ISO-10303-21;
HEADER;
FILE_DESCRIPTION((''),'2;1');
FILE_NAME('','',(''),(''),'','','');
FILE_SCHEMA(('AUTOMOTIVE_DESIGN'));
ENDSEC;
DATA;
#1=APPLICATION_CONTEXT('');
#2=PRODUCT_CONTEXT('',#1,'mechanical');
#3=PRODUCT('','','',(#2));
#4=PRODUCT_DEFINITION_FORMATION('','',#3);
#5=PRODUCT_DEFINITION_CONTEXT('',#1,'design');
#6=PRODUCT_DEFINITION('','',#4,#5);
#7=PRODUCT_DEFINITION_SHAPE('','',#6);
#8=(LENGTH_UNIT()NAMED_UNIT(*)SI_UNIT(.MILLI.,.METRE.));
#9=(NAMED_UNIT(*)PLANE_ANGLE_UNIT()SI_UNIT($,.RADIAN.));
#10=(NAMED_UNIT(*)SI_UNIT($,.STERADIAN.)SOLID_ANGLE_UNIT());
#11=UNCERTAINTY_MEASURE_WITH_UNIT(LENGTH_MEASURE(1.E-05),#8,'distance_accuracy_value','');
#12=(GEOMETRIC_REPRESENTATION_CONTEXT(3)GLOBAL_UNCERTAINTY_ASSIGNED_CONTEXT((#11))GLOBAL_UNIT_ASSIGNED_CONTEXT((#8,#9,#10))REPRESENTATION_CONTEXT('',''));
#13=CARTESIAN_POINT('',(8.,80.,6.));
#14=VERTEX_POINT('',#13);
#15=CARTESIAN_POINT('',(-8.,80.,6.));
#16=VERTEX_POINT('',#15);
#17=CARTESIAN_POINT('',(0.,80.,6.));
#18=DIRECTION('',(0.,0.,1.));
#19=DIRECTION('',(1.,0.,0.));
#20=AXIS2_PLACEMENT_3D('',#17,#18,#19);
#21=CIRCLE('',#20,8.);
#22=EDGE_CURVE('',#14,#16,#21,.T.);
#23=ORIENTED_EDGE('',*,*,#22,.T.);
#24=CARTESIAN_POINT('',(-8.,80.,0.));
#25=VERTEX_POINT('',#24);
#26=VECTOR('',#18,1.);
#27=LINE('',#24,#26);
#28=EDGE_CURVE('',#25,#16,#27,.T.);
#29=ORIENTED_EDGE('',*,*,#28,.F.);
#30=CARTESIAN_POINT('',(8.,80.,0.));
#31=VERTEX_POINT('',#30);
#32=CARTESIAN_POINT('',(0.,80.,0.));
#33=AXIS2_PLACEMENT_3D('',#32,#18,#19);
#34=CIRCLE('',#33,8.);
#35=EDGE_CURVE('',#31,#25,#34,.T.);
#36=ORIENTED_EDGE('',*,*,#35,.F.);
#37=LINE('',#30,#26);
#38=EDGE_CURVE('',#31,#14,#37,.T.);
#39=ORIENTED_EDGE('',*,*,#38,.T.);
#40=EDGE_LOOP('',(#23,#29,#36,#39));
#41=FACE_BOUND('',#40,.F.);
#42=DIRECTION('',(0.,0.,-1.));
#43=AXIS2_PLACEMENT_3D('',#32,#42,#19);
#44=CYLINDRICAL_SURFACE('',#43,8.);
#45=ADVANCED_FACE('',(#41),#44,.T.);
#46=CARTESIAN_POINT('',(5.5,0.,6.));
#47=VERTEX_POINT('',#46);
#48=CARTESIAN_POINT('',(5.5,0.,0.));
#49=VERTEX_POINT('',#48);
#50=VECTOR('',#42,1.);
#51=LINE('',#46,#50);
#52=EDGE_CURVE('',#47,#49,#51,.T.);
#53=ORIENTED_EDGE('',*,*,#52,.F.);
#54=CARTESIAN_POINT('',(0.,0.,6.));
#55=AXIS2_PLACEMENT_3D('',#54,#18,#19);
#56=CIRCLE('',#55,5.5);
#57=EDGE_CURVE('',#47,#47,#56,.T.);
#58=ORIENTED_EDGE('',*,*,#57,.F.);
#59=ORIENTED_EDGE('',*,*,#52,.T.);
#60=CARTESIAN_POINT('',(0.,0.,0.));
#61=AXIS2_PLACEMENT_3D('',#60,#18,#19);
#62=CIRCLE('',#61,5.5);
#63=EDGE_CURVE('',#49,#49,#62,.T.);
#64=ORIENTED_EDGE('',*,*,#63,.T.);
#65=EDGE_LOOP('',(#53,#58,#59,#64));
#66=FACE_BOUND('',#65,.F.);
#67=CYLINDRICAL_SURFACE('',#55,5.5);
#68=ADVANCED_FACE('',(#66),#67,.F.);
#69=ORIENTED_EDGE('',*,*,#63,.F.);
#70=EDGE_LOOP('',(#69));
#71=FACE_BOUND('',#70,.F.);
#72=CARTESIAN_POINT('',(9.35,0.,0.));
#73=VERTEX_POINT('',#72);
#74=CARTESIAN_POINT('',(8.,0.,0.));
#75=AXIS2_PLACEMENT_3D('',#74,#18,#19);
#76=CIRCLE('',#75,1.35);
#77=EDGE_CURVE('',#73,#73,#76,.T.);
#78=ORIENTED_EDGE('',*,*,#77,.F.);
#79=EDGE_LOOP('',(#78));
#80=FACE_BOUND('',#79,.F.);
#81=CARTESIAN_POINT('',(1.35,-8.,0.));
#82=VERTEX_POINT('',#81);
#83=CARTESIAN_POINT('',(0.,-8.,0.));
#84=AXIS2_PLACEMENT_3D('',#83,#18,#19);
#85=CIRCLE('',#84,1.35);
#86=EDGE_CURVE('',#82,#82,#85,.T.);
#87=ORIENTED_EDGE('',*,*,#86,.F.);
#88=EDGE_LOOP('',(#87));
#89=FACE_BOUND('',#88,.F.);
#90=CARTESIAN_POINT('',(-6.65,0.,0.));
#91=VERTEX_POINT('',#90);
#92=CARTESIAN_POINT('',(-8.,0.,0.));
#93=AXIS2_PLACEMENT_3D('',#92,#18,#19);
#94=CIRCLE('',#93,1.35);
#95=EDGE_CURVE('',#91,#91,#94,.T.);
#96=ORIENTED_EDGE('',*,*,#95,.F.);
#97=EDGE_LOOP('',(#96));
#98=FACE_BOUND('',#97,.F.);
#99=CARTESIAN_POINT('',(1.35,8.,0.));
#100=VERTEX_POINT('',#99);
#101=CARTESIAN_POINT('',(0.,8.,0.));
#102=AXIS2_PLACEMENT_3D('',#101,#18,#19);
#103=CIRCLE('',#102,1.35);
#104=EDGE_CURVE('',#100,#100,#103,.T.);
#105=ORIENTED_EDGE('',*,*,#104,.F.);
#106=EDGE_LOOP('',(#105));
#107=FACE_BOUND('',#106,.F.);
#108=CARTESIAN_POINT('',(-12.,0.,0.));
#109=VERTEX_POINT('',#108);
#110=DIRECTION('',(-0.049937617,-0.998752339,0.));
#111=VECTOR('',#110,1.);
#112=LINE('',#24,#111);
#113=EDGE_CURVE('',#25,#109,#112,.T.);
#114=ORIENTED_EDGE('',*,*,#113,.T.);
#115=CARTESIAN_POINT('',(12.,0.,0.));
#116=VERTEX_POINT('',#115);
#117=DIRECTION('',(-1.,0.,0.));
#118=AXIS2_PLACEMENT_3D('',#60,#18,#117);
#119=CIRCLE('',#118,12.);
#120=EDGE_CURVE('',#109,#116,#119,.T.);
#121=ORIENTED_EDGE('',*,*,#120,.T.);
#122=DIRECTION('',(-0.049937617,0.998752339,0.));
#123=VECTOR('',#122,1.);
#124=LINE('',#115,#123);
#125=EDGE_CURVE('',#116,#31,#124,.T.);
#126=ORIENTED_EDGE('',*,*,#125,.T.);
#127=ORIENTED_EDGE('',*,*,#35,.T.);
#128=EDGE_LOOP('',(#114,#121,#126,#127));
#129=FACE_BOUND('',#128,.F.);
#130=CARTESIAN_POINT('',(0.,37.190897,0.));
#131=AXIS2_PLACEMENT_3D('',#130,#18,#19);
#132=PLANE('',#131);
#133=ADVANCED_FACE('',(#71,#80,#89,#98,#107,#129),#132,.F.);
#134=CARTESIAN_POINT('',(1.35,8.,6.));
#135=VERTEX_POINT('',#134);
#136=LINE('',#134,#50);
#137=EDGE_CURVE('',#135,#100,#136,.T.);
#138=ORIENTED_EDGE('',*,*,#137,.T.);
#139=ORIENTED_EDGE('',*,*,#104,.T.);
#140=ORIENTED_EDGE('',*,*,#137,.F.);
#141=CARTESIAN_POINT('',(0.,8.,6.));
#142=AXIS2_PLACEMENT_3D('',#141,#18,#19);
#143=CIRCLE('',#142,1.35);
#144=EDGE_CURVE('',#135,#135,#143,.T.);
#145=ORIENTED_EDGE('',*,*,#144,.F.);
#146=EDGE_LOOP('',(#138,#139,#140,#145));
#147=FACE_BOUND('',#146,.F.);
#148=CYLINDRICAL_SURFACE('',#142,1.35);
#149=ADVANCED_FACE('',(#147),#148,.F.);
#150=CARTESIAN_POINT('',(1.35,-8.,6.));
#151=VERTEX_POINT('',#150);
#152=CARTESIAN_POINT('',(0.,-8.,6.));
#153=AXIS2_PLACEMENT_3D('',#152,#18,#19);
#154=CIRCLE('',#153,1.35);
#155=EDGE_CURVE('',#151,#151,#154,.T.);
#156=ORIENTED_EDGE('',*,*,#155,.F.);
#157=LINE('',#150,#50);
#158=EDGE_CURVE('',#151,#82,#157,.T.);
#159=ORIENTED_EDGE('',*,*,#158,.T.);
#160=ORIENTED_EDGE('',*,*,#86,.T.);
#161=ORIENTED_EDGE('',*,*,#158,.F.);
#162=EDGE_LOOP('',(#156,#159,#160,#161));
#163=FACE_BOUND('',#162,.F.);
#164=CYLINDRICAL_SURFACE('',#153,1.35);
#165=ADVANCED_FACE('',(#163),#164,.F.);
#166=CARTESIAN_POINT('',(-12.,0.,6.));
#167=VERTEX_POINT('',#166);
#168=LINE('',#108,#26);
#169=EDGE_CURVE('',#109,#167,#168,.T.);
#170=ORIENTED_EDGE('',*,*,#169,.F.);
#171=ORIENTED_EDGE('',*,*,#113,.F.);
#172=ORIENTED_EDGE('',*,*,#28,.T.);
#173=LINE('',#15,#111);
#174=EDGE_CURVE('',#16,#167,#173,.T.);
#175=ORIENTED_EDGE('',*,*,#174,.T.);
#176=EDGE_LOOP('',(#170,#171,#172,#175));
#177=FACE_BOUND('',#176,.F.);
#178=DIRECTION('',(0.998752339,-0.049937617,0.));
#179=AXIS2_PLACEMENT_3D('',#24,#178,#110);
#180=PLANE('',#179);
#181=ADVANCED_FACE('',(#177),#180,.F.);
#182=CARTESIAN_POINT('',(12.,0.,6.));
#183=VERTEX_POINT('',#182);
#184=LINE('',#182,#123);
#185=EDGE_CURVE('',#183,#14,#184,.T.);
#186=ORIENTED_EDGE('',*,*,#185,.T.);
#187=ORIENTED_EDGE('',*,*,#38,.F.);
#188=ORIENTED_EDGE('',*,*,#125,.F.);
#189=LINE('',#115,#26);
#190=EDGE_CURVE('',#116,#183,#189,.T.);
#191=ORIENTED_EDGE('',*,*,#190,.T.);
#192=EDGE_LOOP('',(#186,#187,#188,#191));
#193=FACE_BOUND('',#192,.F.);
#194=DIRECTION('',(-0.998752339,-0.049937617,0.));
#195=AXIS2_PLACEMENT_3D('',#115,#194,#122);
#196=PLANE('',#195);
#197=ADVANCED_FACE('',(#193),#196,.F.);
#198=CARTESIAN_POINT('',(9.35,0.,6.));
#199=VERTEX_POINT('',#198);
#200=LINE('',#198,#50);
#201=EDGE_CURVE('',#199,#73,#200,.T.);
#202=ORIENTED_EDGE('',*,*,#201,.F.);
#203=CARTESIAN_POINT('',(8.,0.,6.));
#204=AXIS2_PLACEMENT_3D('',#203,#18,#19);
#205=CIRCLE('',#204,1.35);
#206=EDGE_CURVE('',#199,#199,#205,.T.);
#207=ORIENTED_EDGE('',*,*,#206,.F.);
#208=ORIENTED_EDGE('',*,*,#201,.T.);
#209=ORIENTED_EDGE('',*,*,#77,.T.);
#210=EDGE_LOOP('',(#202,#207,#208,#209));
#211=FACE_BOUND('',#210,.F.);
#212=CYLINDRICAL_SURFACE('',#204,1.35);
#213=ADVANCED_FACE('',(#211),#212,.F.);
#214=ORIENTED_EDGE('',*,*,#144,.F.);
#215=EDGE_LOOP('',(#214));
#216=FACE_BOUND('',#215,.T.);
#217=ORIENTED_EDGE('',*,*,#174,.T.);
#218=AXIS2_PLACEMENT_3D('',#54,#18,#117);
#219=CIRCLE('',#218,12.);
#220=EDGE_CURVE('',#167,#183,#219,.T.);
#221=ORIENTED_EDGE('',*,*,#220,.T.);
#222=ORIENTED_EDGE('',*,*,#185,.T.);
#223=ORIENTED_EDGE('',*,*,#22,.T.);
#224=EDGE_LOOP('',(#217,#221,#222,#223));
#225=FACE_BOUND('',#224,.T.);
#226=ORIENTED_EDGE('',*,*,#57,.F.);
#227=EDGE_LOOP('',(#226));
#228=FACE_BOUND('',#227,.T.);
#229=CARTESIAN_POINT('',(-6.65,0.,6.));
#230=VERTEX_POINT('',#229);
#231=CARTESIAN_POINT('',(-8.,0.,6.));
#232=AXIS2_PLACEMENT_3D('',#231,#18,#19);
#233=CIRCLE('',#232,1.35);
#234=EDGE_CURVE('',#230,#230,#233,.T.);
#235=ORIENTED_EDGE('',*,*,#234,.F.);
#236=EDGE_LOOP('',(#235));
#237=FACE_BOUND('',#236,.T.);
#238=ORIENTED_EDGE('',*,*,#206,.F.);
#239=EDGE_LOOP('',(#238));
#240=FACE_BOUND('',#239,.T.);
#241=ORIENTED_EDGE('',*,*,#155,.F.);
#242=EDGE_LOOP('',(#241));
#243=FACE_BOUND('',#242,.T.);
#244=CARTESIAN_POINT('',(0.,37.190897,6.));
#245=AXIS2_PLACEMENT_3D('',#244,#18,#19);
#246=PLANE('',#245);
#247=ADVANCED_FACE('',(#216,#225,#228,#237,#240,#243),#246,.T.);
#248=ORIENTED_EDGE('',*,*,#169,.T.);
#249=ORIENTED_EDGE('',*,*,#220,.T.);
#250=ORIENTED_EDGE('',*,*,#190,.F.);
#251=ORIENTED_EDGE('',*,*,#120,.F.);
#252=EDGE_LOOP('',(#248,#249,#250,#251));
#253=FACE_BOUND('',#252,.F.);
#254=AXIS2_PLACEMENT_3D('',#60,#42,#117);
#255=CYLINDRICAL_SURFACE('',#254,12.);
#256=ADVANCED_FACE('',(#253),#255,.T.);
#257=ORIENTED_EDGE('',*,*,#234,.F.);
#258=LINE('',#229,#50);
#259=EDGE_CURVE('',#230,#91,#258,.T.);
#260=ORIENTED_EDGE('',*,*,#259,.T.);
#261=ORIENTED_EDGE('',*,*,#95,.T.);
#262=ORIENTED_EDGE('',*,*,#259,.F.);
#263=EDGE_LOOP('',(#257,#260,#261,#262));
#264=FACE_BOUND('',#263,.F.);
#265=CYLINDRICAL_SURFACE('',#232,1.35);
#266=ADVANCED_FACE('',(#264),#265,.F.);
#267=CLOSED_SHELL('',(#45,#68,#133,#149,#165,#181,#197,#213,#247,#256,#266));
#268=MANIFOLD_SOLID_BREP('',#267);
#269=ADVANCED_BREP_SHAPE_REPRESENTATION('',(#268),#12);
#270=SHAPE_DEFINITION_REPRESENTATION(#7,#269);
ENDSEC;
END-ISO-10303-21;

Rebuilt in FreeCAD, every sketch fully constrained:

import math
import FreeCAD as App
import Part
import Sketcher
Q = App.Units.Quantity

doc = App.newDocument("Part")
params = doc.addObject("Spreadsheet::Sheet", "Params")
for row, (alias, value) in enumerate([
    ("sketch1_radius", "8 mm"),
    ("sketch1_radius2", "12 mm"),
    ("pad1_length", "6 mm"),
    ("sketch2_diameter", "11 mm"),
    ("sketch2_diameter2", "2.7 mm"),
], start=1):
    params.set(f"A{row}", alias)
    params.set(f"B{row}", "=" + value)
    params.setAlias(f"B{row}", alias)

body = doc.addObject("PartDesign::Body", "Body")

# Sketch on XY plane
sketch1 = doc.addObject("Sketcher::SketchObject", "Sketch")
body.addObject(sketch1)
sketch1.AttachmentSupport = (doc.XY_Plane, [""])
sketch1.MapMode = "FlatFace"
sketch1.addGeometry([
    Part.LineSegment(App.Vector(12, 0, 0), App.Vector(8, 80, 0)),
    Part.ArcOfCircle(Part.Circle(App.Vector(0, 80, 0), App.Vector(0, 0, 1), 8), math.radians(0), math.radians(180)),
    Part.LineSegment(App.Vector(-8, 80, 0), App.Vector(-12, 0, 0)),
    Part.ArcOfCircle(Part.Circle(App.Vector(0, 0, 0), App.Vector(0, 0, 1), 12), math.radians(180), math.radians(360)),
], False)
sketch1.addConstraint([
    Sketcher.Constraint("Coincident", 0, 2, 1, 1),
    Sketcher.Constraint("Coincident", 1, 2, 2, 1),
    Sketcher.Constraint("Coincident", 2, 2, 3, 1),
    Sketcher.Constraint("Coincident", 3, 2, 0, 1),
    Sketcher.Constraint("Coincident", 3, 3, -1, 1),
    Sketcher.Constraint("Symmetric", 0, 2, 1, 2, -2),
    Sketcher.Constraint("PointOnObject", 2, 2, -1),
    Sketcher.Constraint("PointOnObject", 3, 2, -1),
    Sketcher.Constraint("Horizontal", 1, 3, 0, 2),
    Sketcher.Constraint("Radius", 1, Q("8 mm")),
    Sketcher.Constraint("Radius", 3, Q("12 mm")),
    Sketcher.Constraint("DistanceY", -1, 1, 1, 3, Q("80 mm")),
])
sketch1.setExpression("Constraints[9]", "Params.sketch1_radius")
sketch1.setExpression("Constraints[10]", "Params.sketch1_radius2")
pad1 = doc.addObject("PartDesign::Pad", "Pad")
body.addObject(pad1)
pad1.Profile = sketch1
pad1.setExpression("Length", "Params.pad1_length")

# Sketch on XY plane
sketch2 = doc.addObject("Sketcher::SketchObject", "Sketch001")
body.addObject(sketch2)
sketch2.AttachmentSupport = (doc.XY_Plane, [""])
sketch2.MapMode = "FlatFace"
sketch2.AttachmentOffset = App.Placement(App.Vector(0, 0, 6), App.Rotation())
sketch2.addGeometry([
    Part.Circle(App.Vector(0, 0, 0), App.Vector(0, 0, 1), 5.5),  # 0
    Part.Circle(App.Vector(8, 0, 0), App.Vector(0, 0, 1), 1.35),  # 1
    Part.Circle(App.Vector(0, -8, 0), App.Vector(0, 0, 1), 1.35),  # 2
    Part.Circle(App.Vector(-8, 0, 0), App.Vector(0, 0, 1), 1.35),  # 3
    Part.Circle(App.Vector(0, 8, 0), App.Vector(0, 0, 1), 1.35),  # 4
], False)
sketch2.addConstraint([
    Sketcher.Constraint("Coincident", 0, 3, -1, 1),
    Sketcher.Constraint("Equal", 1, 2),
    Sketcher.Constraint("Equal", 2, 3),
    Sketcher.Constraint("Equal", 3, 4),
    Sketcher.Constraint("Symmetric", 1, 3, 3, 3, -1, 1),
    Sketcher.Constraint("Symmetric", 2, 3, 4, 3, -1, 1),
    Sketcher.Constraint("PointOnObject", 1, 3, -1),
    Sketcher.Constraint("PointOnObject", 2, 3, -2),
    Sketcher.Constraint("Diameter", 0, Q("11 mm")),
    Sketcher.Constraint("Diameter", 1, Q("2.7 mm")),
    Sketcher.Constraint("DistanceX", -1, 1, 1, 3, Q("8 mm")),
    Sketcher.Constraint("DistanceY", 2, 3, -1, 1, Q("8 mm")),
])
sketch2.setExpression("Constraints[8]", "Params.sketch2_diameter")
sketch2.setExpression("Constraints[9]", "Params.sketch2_diameter2")
pocket1 = doc.addObject("PartDesign::Pocket", "Pocket")
body.addObject(pocket1)
pocket1.Profile = sketch2
pocket1.Type = "ThroughAll"
pocket1.Midplane = True

doc.recompute()
